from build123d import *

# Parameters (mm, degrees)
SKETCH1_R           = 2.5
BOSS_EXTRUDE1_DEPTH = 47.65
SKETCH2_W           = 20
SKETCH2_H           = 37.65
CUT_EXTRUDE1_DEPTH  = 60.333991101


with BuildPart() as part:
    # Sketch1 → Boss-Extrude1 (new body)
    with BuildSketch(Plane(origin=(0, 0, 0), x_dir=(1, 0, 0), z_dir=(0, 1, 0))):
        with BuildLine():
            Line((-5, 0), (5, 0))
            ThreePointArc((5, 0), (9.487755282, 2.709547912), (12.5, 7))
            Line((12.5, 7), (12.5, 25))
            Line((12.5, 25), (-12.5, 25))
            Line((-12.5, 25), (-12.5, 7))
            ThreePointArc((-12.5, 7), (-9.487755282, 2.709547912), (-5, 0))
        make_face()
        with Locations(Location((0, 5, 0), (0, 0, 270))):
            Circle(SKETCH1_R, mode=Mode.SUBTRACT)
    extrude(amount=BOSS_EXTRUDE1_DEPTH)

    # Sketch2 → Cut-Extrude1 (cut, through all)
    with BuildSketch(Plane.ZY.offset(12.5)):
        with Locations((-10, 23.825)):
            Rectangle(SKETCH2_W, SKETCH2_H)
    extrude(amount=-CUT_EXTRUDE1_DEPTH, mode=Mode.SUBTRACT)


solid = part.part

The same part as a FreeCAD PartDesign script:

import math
import FreeCAD as App
import Part
import Sketcher
from FreeCAD import Vector


def add_polygon(sketch, points):
    """Adds a closed chain of lines whose ends are joined by coincident constraints."""
    first, n = sketch.GeometryCount, len(points)
    for a, b in zip(points, points[1:] + points[:1]):
        sketch.addGeometry(Part.LineSegment(App.Vector(*a, 0), App.Vector(*b, 0)), False)
    for i in range(n):
        sketch.addConstraint(Sketcher.Constraint("Coincident", first + i, 2, first + (i + 1) % n, 1))

doc = App.newDocument("Part")
body = doc.addObject("PartDesign::Body", "Body")

# Sketch on XZ plane
sketch1 = doc.addObject("Sketcher::SketchObject", "Sketch")
body.addObject(sketch1)
sketch1.AttachmentSupport = (doc.XZ_Plane, [""])
sketch1.MapMode = "FlatFace"
sketch1.addGeometry([
    Part.LineSegment(Vector(-5, 0, 0), Vector(5, 0, 0)),  # 0
    Part.ArcOfCircle(Part.Circle(Vector(0.8, -12, 0), Vector(0, 0, 1), 12.7), math.radians(23), math.radians(71)),  # 1
    Part.LineSegment(Vector(12.5, -7, 0), Vector(12.5, -25, 0)),  # 2
    Part.LineSegment(Vector(12.5, -25, 0), Vector(-12.5, -25, 0)),  # 3
    Part.LineSegment(Vector(-12.5, -25, 0), Vector(-12.5, -7, 0)),  # 4
    Part.ArcOfCircle(Part.Circle(Vector(-0.8, -12, 0), Vector(0, 0, 1), 12.7), math.radians(109), math.radians(157)),  # 5
    Part.Circle(Vector(0, -5, 0), Vector(0, 0, 1), 2.5),  # 6
], False)
sketch1.addConstraint([
    Sketcher.Constraint("Coincident", 0, 2, 1, 2),
    Sketcher.Constraint("Coincident", 1, 1, 2, 1),
    Sketcher.Constraint("Coincident", 2, 2, 3, 1),
    Sketcher.Constraint("Coincident", 3, 2, 4, 1),
    Sketcher.Constraint("Coincident", 4, 2, 5, 2),
    Sketcher.Constraint("Coincident", 5, 1, 0, 1),
    Sketcher.Constraint("Horizontal", 0),
    Sketcher.Constraint("Vertical", 2),
    Sketcher.Constraint("Horizontal", 3),
    Sketcher.Constraint("Vertical", 4),
    Sketcher.Constraint("Equal", 1, 5),
    Sketcher.Constraint("Symmetric", 0, 2, 5, 1, -1, 1),
    Sketcher.Constraint("Symmetric", 1, 1, 4, 2, -2),
    Sketcher.Constraint("PointOnObject", 6, 3, -2),
    Sketcher.Constraint("Diameter", 6, 5.0),
    Sketcher.Constraint("DistanceX", 0, 1, 0, 2, 10.0),
    Sketcher.Constraint("DistanceX", 3, 2, 3, 1, 25.0),
    Sketcher.Constraint("DistanceY", 2, 2, 2, 1, 18.0),
    Sketcher.Constraint("DistanceY", 1, 3, -1, 1, 12.0),
    Sketcher.Constraint("DistanceY", 6, 3, -1, 1, 5.0),
    Sketcher.Constraint("DistanceY", 1, 1, -1, 1, 7.0),
])
pad1 = doc.addObject("PartDesign::Pad", "Pad")
body.addObject(pad1)
pad1.Profile = sketch1
pad1.Length = 47.65
pad1.Reversed = True

# Sketch on YZ plane
sketch2 = doc.addObject("Sketcher::SketchObject", "Sketch001")
body.addObject(sketch2)
sketch2.AttachmentSupport = (doc.YZ_Plane, [""])
sketch2.MapMode = "FlatFace"
sketch2.AttachmentOffset = App.Placement(Vector(0, 0, -12.5), App.Rotation())
add_polygon(sketch2, [(43, -20), (5, -20), (5, 0), (43, 0)])  # lines 0-3
sketch2.addConstraint([
    Sketcher.Constraint("Horizontal", 0),
    Sketcher.Constraint("Vertical", 1),
    Sketcher.Constraint("Horizontal", 2),
    Sketcher.Constraint("Vertical", 3),
    Sketcher.Constraint("PointOnObject", 1, 2, -1),
    Sketcher.Constraint("DistanceY", 1, 1, 1, 2, 20.0),
    Sketcher.Constraint("DistanceX", -1, 1, 0, 2, 5.0),
    Sketcher.Constraint("DistanceX", 0, 2, 0, 1, 37.65),
])
pocket1 = doc.addObject("PartDesign::Pocket", "Pocket")
body.addObject(pocket1)
pocket1.Profile = sketch2
pocket1.Type = "ThroughAll"
pocket1.Reversed = True

doc.recompute()
